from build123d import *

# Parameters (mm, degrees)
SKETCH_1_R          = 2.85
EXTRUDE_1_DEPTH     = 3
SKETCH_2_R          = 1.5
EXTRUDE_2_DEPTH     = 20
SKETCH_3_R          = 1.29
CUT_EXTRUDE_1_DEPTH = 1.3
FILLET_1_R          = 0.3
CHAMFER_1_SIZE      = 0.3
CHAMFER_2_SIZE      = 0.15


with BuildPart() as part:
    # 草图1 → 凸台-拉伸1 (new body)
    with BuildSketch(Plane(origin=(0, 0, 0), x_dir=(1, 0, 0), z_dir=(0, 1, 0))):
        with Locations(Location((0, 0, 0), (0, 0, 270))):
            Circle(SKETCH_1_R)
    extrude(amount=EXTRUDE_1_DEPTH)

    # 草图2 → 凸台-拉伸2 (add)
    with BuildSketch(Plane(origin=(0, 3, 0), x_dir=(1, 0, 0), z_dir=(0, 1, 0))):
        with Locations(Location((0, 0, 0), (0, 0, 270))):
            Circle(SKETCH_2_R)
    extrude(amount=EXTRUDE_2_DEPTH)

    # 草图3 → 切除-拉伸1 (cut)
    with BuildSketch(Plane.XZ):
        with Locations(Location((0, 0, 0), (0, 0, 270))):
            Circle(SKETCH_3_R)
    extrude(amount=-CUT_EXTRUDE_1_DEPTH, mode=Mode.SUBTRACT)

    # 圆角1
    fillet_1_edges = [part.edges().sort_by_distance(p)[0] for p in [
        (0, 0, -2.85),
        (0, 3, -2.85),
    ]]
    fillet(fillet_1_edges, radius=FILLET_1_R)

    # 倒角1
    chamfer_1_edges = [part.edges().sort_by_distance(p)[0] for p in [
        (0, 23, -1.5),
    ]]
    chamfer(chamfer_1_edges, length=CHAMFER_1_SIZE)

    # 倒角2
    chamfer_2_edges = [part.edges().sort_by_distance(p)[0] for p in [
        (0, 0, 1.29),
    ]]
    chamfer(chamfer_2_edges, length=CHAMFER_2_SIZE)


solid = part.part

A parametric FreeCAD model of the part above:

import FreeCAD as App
import Part
import Sketcher
Q = App.Units.Quantity


def edges_at(feature, points):
    """Names of the edges that pass closest to the given points."""
    edges = feature.Shape.Edges
    near = lambda p: min(range(len(edges)), key=lambda i: edges[i].distToShape(Part.Vertex(*p))[0])
    return sorted({f"Edge{near(p) + 1}" for p in points})

doc = App.newDocument("Part")
params = doc.addObject("Spreadsheet::Sheet", "Params")
for row, (alias, value) in enumerate([
    ("sketch1_diameter", "5.7 mm"),
    ("pad1_length", "3 mm"),
    ("sketch2_diameter", "3 mm"),
    ("pad2_length", "20 mm"),
    ("sketch3_diameter", "2.58 mm"),
    ("pocket1_length", "1.3 mm"),
    ("fillet_radius", "0.3 mm"),
    ("chamfer_size", "0.3 mm"),
    ("chamfer2_size", "0.15 mm"),
], start=1):
    params.set(f"A{row}", alias)
    params.set(f"B{row}", "=" + value)
    params.setAlias(f"B{row}", alias)

body = doc.addObject("PartDesign::Body", "Body")

sketch1 = body.newObject("Sketcher::SketchObject", "Sketch")
sketch1.AttachmentSupport = (doc.getObject("XZ_Plane"), [""])
sketch1.MapMode = "FlatFace"
sketch1.addGeometry(Part.Circle(App.Vector(0, 0, 0), App.Vector(0, 0, 1), 2.9), False)
sketch1.addConstraint([
    Sketcher.Constraint("Coincident", 0, 3, -1, 1),
    Sketcher.Constraint("Diameter", 0, Q("5.7 mm")),
])
sketch1.setExpression("Constraints[1]", "Params.sketch1_diameter")
pad1 = body.newObject("PartDesign::Pad", "Pad")
pad1.Profile = sketch1
pad1.setExpression("Length", "Params.pad1_length")
pad1.Reversed = True

sketch2 = body.newObject("Sketcher::SketchObject", "Sketch001")
sketch2.AttachmentSupport = (doc.getObject("XZ_Plane"), [""])
sketch2.MapMode = "FlatFace"
sketch2.AttachmentOffset = App.Placement(App.Vector(0, 0, -3), App.Rotation())
sketch2.addGeometry(Part.Circle(App.Vector(0, 0, 0), App.Vector(0, 0, 1), 1.5), False)
sketch2.addConstraint([
    Sketcher.Constraint("Coincident", 0, 3, -1, 1),
    Sketcher.Constraint("Diameter", 0, Q("3 mm")),
])
sketch2.setExpression("Constraints[1]", "Params.sketch2_diameter")
pad2 = body.newObject("PartDesign::Pad", "Pad001")
pad2.Profile = sketch2
pad2.setExpression("Length", "Params.pad2_length")
pad2.Reversed = True

sketch3 = body.newObject("Sketcher::SketchObject", "Sketch002")
sketch3.AttachmentSupport = (doc.getObject("XZ_Plane"), [""])
sketch3.MapMode = "FlatFace"
sketch3.addGeometry(Part.Circle(App.Vector(0, 0, 0), App.Vector(0, 0, 1), 1.3), False)
sketch3.addConstraint([
    Sketcher.Constraint("Coincident", 0, 3, -1, 1),
    Sketcher.Constraint("Diameter", 0, Q("2.58 mm")),
])
sketch3.setExpression("Constraints[1]", "Params.sketch3_diameter")
pocket1 = body.newObject("PartDesign::Pocket", "Pocket")
pocket1.Profile = sketch3
pocket1.setExpression("Length", "Params.pocket1_length")
doc.recompute()

fillet = body.newObject("PartDesign::Fillet", "Fillet")
fillet.Base = (pocket1, edges_at(pocket1, [(0, 0, -2.85), (0, 3, -2.85)]))
fillet.setExpression("Radius", "Params.fillet_radius")
doc.recompute()

chamfer = body.newObject("PartDesign::Chamfer", "Chamfer")
chamfer.Base = (fillet, edges_at(fillet, [(0, 23, -1.5)]))
chamfer.setExpression("Size", "Params.chamfer_size")
doc.recompute()

chamfer2 = body.newObject("PartDesign::Chamfer", "Chamfer001")
chamfer2.Base = (chamfer, edges_at(chamfer, [(0, 0, 1.29)]))
chamfer2.setExpression("Size", "Params.chamfer2_size")

doc.recompute()
